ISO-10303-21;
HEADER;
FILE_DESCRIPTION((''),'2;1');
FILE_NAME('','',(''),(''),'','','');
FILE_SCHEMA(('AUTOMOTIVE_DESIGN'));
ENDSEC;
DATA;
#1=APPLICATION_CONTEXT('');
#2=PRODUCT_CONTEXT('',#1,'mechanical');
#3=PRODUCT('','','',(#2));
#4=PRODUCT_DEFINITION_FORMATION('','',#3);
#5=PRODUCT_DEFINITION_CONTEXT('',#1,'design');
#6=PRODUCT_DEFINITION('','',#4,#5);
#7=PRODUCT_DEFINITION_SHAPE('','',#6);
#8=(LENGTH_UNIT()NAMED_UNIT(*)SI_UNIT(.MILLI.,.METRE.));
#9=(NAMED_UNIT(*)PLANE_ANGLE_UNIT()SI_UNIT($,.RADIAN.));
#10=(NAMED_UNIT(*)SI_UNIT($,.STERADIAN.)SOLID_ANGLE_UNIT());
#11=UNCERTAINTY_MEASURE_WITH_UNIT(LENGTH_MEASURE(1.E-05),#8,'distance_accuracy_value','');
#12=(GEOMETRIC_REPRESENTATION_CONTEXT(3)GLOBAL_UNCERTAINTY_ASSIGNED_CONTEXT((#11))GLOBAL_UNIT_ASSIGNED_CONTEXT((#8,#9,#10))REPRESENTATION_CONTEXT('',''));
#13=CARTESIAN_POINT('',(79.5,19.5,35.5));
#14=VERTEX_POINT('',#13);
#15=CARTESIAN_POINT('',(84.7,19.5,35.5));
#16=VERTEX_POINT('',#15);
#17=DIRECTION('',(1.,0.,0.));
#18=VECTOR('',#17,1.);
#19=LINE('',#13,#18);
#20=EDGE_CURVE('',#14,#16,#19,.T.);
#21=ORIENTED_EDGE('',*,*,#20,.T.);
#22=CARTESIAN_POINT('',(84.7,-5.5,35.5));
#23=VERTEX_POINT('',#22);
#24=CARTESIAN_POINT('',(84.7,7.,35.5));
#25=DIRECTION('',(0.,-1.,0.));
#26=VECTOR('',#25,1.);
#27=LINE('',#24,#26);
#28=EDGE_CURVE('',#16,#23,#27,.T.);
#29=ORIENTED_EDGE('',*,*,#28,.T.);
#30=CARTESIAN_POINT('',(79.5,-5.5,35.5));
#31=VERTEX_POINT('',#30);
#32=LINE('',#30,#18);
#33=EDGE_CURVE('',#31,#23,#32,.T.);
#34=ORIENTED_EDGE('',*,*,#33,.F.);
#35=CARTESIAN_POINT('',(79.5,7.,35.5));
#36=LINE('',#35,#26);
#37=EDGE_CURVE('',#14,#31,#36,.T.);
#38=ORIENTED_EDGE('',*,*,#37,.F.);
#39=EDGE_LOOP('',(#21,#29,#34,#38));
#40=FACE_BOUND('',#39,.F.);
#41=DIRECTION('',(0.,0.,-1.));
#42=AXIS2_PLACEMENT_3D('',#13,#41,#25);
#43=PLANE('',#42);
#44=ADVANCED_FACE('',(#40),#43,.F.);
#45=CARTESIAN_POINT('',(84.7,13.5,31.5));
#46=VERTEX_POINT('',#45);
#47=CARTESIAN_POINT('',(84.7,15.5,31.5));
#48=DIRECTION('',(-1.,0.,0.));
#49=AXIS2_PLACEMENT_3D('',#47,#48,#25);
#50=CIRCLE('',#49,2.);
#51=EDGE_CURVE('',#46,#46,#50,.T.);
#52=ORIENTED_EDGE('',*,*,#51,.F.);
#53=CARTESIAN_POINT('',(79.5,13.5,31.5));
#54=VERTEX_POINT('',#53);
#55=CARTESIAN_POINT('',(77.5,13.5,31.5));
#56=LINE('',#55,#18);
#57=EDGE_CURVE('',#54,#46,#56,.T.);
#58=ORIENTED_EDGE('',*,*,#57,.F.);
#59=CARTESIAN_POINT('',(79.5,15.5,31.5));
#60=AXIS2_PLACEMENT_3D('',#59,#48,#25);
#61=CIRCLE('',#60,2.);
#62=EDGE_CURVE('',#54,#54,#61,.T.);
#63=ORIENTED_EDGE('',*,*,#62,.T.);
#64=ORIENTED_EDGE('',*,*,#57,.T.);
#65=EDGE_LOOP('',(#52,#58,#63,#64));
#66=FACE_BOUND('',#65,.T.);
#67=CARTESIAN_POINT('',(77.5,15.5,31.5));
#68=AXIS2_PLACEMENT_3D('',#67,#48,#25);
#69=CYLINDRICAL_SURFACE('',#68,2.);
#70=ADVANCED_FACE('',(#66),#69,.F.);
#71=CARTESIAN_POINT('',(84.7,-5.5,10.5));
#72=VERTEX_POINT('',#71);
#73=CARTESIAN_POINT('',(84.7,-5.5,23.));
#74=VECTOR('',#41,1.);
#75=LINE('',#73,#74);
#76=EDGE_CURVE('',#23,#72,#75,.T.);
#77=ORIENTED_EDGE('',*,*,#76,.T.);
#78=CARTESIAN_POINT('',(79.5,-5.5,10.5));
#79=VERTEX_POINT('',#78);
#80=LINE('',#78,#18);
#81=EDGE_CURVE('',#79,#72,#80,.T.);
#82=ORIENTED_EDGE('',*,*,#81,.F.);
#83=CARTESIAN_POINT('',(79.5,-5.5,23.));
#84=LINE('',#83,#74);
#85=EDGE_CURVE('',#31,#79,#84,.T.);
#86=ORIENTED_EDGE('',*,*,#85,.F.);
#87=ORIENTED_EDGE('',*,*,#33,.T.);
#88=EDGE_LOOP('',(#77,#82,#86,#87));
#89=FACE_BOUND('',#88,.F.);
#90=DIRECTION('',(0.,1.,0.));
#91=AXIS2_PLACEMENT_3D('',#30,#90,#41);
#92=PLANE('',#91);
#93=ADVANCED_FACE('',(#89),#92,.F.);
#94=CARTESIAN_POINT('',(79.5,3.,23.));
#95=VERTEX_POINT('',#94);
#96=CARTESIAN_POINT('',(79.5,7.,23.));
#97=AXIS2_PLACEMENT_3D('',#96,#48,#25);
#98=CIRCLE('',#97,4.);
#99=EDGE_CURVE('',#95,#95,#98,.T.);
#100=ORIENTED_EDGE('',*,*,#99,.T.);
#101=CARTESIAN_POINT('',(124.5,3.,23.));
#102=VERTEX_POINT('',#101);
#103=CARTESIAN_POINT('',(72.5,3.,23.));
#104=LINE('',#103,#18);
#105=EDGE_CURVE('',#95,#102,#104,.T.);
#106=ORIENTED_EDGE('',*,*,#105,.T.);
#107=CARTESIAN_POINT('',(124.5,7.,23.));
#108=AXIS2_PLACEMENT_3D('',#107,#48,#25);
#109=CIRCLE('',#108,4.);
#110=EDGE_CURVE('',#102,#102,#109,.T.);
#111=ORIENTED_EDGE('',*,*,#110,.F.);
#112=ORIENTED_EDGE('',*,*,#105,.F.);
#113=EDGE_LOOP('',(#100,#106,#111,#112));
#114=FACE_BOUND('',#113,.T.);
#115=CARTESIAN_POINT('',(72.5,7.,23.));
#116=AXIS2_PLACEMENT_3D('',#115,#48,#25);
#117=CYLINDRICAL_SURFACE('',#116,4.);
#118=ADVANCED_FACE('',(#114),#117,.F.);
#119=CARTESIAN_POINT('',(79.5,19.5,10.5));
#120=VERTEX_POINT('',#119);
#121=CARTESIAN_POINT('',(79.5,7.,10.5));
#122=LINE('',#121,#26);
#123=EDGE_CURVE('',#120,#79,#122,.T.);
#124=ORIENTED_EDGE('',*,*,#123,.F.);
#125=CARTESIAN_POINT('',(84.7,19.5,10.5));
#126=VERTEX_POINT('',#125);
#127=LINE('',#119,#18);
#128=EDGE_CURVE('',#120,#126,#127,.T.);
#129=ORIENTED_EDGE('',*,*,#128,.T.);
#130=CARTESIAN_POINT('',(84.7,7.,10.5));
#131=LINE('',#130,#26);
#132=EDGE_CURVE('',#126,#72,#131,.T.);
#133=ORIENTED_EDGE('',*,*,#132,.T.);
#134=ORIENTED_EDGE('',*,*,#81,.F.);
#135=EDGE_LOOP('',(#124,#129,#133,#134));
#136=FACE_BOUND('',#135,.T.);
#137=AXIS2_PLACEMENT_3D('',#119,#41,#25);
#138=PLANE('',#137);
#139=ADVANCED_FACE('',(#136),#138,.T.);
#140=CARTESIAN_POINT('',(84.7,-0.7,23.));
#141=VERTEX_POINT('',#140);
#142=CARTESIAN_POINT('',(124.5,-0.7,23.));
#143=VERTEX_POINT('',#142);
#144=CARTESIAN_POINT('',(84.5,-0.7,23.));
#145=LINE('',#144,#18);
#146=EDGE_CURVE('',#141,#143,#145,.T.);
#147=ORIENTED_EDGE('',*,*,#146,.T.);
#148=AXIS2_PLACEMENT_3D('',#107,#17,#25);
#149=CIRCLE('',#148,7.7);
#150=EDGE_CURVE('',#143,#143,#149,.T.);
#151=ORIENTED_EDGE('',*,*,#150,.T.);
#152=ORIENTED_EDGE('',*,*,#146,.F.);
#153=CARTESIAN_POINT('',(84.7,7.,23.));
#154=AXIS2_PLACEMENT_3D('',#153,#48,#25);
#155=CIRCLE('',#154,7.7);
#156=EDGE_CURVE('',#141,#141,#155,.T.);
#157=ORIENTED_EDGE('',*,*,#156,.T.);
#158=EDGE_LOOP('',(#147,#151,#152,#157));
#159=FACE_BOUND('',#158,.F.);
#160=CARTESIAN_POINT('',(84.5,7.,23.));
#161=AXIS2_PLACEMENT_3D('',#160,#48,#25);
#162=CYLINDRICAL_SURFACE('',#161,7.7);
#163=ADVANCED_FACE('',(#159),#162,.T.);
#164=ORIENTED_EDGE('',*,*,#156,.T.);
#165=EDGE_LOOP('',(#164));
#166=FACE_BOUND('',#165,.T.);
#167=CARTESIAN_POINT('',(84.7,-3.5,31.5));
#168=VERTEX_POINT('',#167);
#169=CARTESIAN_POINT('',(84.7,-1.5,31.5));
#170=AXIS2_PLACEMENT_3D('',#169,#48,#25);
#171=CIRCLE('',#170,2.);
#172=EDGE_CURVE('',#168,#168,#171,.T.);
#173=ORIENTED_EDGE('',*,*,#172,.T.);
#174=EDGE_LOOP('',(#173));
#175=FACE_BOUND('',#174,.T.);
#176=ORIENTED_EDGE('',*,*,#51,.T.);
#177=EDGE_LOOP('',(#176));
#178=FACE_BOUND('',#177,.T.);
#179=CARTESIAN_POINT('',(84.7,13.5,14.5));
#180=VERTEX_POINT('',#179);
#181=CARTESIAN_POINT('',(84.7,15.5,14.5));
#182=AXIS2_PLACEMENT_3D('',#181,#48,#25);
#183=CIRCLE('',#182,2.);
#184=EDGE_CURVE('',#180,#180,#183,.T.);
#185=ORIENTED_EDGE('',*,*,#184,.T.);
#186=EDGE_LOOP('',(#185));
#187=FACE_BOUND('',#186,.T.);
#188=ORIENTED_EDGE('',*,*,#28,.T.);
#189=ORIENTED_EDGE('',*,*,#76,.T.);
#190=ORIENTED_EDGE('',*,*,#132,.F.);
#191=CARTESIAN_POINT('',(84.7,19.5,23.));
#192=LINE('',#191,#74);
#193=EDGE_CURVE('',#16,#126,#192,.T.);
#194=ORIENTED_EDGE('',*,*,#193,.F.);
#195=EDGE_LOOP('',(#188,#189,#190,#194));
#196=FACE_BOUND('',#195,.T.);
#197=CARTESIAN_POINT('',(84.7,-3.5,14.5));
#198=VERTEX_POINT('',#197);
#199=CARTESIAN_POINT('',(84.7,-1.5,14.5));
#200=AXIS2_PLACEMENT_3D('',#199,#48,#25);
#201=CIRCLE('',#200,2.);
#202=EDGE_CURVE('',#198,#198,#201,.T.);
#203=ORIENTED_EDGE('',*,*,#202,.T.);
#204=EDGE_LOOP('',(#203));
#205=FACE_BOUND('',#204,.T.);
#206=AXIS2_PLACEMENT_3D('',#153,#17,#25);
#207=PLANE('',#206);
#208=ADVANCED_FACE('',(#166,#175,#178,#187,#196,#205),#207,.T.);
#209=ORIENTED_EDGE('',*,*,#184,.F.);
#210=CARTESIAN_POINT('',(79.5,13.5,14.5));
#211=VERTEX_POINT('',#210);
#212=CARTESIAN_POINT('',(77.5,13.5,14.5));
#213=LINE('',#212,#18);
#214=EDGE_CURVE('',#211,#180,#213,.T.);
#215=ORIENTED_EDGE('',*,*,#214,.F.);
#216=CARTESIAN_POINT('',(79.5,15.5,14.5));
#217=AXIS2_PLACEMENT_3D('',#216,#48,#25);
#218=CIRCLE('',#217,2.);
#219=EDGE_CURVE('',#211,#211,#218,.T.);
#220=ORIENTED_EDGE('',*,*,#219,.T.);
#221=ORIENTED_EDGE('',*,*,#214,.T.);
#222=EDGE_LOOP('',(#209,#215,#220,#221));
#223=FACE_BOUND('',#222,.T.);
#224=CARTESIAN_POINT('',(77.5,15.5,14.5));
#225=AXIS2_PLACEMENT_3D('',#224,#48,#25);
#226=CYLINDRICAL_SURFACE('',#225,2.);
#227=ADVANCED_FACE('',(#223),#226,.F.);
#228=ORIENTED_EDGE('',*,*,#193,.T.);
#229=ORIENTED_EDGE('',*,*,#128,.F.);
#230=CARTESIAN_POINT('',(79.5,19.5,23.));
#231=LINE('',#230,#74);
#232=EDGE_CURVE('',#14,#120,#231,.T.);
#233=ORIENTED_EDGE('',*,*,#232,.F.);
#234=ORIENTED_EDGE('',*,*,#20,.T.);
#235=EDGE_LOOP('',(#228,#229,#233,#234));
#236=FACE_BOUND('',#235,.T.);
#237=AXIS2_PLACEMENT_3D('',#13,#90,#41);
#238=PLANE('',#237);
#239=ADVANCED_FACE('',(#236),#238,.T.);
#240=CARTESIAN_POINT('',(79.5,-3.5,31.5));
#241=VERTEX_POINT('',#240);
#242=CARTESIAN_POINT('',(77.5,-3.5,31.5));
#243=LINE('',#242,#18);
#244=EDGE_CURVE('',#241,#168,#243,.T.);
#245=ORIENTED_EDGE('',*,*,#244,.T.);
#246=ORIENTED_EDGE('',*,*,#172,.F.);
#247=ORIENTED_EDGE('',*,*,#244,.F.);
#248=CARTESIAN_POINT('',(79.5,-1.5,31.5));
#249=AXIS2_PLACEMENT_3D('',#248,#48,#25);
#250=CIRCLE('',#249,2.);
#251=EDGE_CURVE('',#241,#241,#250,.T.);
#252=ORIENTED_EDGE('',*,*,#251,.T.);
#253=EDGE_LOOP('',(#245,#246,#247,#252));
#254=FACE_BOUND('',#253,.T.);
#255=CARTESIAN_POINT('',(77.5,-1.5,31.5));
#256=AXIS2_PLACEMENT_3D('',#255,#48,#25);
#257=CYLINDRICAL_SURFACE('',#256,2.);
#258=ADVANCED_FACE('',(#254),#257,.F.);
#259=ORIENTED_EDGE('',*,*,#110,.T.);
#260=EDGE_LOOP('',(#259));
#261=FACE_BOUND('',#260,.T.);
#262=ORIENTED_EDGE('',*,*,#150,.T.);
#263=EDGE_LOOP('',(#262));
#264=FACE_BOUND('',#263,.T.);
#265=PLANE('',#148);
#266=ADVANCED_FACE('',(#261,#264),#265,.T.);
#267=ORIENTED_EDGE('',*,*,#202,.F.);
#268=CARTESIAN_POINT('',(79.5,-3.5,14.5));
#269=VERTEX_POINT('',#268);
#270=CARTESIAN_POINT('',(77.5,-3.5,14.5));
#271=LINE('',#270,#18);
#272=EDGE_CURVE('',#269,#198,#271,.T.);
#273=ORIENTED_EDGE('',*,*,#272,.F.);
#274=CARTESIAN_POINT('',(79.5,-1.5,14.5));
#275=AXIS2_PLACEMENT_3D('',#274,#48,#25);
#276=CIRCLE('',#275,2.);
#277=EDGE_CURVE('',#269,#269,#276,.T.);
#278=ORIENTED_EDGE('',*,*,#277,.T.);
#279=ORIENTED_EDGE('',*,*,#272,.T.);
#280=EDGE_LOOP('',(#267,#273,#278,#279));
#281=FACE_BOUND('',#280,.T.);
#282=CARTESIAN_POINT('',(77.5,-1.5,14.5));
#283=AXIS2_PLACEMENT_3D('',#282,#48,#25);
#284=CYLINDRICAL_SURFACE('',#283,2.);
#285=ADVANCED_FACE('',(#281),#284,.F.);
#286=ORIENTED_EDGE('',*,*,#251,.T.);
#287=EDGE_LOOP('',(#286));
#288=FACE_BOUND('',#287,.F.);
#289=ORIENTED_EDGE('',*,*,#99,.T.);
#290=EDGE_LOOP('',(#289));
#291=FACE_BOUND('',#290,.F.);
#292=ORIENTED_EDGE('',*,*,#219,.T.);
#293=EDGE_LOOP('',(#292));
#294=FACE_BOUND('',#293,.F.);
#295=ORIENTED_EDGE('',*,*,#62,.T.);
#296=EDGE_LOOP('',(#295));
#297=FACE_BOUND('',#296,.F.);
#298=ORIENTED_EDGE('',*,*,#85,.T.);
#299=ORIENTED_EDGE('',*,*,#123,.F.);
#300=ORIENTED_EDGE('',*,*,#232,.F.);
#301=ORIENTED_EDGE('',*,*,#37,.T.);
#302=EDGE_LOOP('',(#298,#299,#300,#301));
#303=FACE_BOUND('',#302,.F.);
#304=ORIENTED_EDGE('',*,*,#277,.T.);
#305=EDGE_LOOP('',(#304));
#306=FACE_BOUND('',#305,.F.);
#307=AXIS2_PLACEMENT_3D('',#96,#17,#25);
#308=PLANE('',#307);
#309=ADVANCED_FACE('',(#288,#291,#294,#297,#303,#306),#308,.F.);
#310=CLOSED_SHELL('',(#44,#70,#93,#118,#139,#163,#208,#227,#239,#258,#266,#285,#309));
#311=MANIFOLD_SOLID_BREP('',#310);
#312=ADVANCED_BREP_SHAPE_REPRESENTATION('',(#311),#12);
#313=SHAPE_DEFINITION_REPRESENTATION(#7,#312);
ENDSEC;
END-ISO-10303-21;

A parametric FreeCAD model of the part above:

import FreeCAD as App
import Part
import Sketcher
from FreeCAD import Vector


def add_polygon(sketch, points):
    """Adds a closed chain of lines whose ends are joined by coincident constraints."""
    first, n = sketch.GeometryCount, len(points)
    for a, b in zip(points, points[1:] + points[:1]):
        sketch.addGeometry(Part.LineSegment(App.Vector(*a, 0), App.Vector(*b, 0)), False)
    for i in range(n):
        sketch.addConstraint(Sketcher.Constraint("Coincident", first + i, 2, first + (i + 1) % n, 1))

doc = App.newDocument("Part")
params = doc.addObject("Spreadsheet::Sheet", "Params")
for row, (alias, value) in enumerate([
    ("sketch1_diameter", "4 mm"),
    ("pad1_length", "10 mm"),
    ("sketch2_diameter", "4 mm"),
    ("pad2_length", "10 mm"),
    ("sketch3_diameter", "4 mm"),
    ("pad3_length", "10 mm"),
    ("sketch4_diameter", "4 mm"),
    ("pad4_length", "10 mm"),
    ("sketch5_diameter", "8 mm"),
    ("pad5_length", "60 mm"),
    ("sketch6_diameter", "15.4 mm"),
    ("pad6_length", "40 mm"),
    ("sketch7_width", "25 mm"),
    ("pad7_length", "5.2 mm"),
], start=1):
    params.set(f"A{row}", alias)
    params.set(f"B{row}", "=" + value)
    params.setAlias(f"B{row}", alias)

body = doc.addObject("PartDesign::Body", "Body")

# Sketch on XY plane
sketch1 = body.newObject("Sketcher::SketchObject", "Sketch")
sketch1.AttachmentSupport = (doc.getObject("XY_Plane"), [""])
sketch1.MapMode = "FlatFace"
sketch1.AttachmentOffset = App.Placement(Vector(0, 0, -2), App.Rotation())
sketch1.addGeometry(Part.Circle(Vector(21, 21, 0), Vector(0, 0, 1), 2), False)
sketch1.addConstraint([
    Sketcher.Constraint("Diameter", 0, 4.0),
    Sketcher.Constraint("DistanceX", -1, 1, 0, 3, 21.0),
    Sketcher.Constraint("DistanceY", -1, 1, 0, 3, 21.0),
])
sketch1.setExpression("Constraints[0]", "Params.sketch1_diameter")
pad1 = body.newObject("PartDesign::Pad", "Pad")
pad1.Profile = sketch1
pad1.setExpression("Length", "Params.pad1_length")
body2 = doc.addObject("PartDesign::Body", "Body001")

# Sketch on XY plane
sketch2 = body2.newObject("Sketcher::SketchObject", "Sketch001")
sketch2.AttachmentSupport = (doc.getObject("XY_Plane001"), [""])
sketch2.MapMode = "FlatFace"
sketch2.AttachmentOffset = App.Placement(Vector(0, 0, -2), App.Rotation())
sketch2.addGeometry(Part.Circle(Vector(21, 4, 0), Vector(0, 0, 1), 2), False)
sketch2.addConstraint([
    Sketcher.Constraint("Diameter", 0, 4.0),
    Sketcher.Constraint("DistanceX", -1, 1, 0, 3, 21.0),
    Sketcher.Constraint("DistanceY", -1, 1, 0, 3, 4.0),
])
sketch2.setExpression("Constraints[0]", "Params.sketch2_diameter")
pad2 = body2.newObject("PartDesign::Pad", "Pad001")
pad2.Profile = sketch2
pad2.setExpression("Length", "Params.pad2_length")
body3 = doc.addObject("PartDesign::Body", "Body002")

# Sketch on XY plane
sketch3 = body3.newObject("Sketcher::SketchObject", "Sketch002")
sketch3.AttachmentSupport = (doc.getObject("XY_Plane002"), [""])
sketch3.MapMode = "FlatFace"
sketch3.AttachmentOffset = App.Placement(Vector(0, 0, -2), App.Rotation())
sketch3.addGeometry(Part.Circle(Vector(4, 21, 0), Vector(0, 0, 1), 2), False)
sketch3.addConstraint([
    Sketcher.Constraint("Diameter", 0, 4.0),
    Sketcher.Constraint("DistanceX", -1, 1, 0, 3, 4.0),
    Sketcher.Constraint("DistanceY", -1, 1, 0, 3, 21.0),
])
sketch3.setExpression("Constraints[0]", "Params.sketch3_diameter")
pad3 = body3.newObject("PartDesign::Pad", "Pad002")
pad3.Profile = sketch3
pad3.setExpression("Length", "Params.pad3_length")
body4 = doc.addObject("PartDesign::Body", "Body003")

# Sketch on XY plane
sketch4 = body4.newObject("Sketcher::SketchObject", "Sketch003")
sketch4.AttachmentSupport = (doc.getObject("XY_Plane003"), [""])
sketch4.MapMode = "FlatFace"
sketch4.AttachmentOffset = App.Placement(Vector(0, 0, -2), App.Rotation())
sketch4.addGeometry(Part.Circle(Vector(4, 4, 0), Vector(0, 0, 1), 2), False)
sketch4.addConstraint([
    Sketcher.Constraint("Diameter", 0, 4.0),
    Sketcher.Constraint("DistanceX", -1, 1, 0, 3, 4.0),
    Sketcher.Constraint("DistanceY", -1, 1, 0, 3, 4.0),
])
sketch4.setExpression("Constraints[0]", "Params.sketch4_diameter")
pad4 = body4.newObject("PartDesign::Pad", "Pad003")
pad4.Profile = sketch4
pad4.setExpression("Length", "Params.pad4_length")
body5 = doc.addObject("PartDesign::Body", "Body004")

# Sketch on XY plane
sketch5 = body5.newObject("Sketcher::SketchObject", "Sketch004")
sketch5.AttachmentSupport = (doc.getObject("XY_Plane004"), [""])
sketch5.MapMode = "FlatFace"
sketch5.AttachmentOffset = App.Placement(Vector(0, 0, -7), App.Rotation())
sketch5.addGeometry(Part.Circle(Vector(12.5, 12.5, 0), Vector(0, 0, 1), 4), False)
sketch5.addConstraint([
    Sketcher.Constraint("Diameter", 0, 8.0),
    Sketcher.Constraint("DistanceX", -1, 1, 0, 3, 12.5),
    Sketcher.Constraint("DistanceY", -1, 1, 0, 3, 12.5),
])
sketch5.setExpression("Constraints[0]", "Params.sketch5_diameter")
pad5 = body5.newObject("PartDesign::Pad", "Pad004")
pad5.Profile = sketch5
pad5.setExpression("Length", "Params.pad5_length")
body6 = doc.addObject("PartDesign::Body", "Body005")

# Sketch on XY plane
sketch6 = body6.newObject("Sketcher::SketchObject", "Sketch005")
sketch6.AttachmentSupport = (doc.getObject("XY_Plane005"), [""])
sketch6.MapMode = "FlatFace"
sketch6.AttachmentOffset = App.Placement(Vector(0, 0, 5), App.Rotation())
sketch6.addGeometry(Part.Circle(Vector(12, 12, 0), Vector(0, 0, 1), 8), False)
sketch6.addConstraint([
    Sketcher.Constraint("Diameter", 0, 15.4),
    Sketcher.Constraint("DistanceX", -1, 1, 0, 3, 12.5),
    Sketcher.Constraint("DistanceY", -1, 1, 0, 3, 12.5),
])
sketch6.setExpression("Constraints[0]", "Params.sketch6_diameter")
pad6 = body6.newObject("PartDesign::Pad", "Pad005")
pad6.Profile = sketch6
pad6.setExpression("Length", "Params.pad6_length")
body7 = doc.addObject("PartDesign::Body", "Body006")

# Sketch on XY plane
sketch7 = body7.newObject("Sketcher::SketchObject", "Sketch006")
sketch7.AttachmentSupport = (doc.getObject("XY_Plane006"), [""])
sketch7.MapMode = "FlatFace"
add_polygon(sketch7, [(0, 25), (0, 0), (25, 0), (25, 25)])  # lines 0-3
sketch7.addConstraint([
    Sketcher.Constraint("Vertical", 0),
    Sketcher.Constraint("Horizontal", 1),
    Sketcher.Constraint("Vertical", 2),
    Sketcher.Constraint("Horizontal", 3),
    Sketcher.Constraint("Coincident", 0, 2, -1, 1),
    Sketcher.Constraint("Equal", 3, 0),
    Sketcher.Constraint("DistanceX", 1, 1, 1, 2, 25.0),
])
sketch7.setExpression("Constraints[10]", "Params.sketch7_width")
pad7 = body7.newObject("PartDesign::Pad", "Pad006")
pad7.Profile = sketch7
pad7.setExpression("Length", "Params.pad7_length")
doc.recompute()

boolean = body7.newObject("PartDesign::Boolean", "Boolean")
boolean.Type = "Fuse"
boolean.addObjects([body6])
doc.recompute()

boolean2 = body7.newObject("PartDesign::Boolean", "Boolean001")
boolean2.Type = "Cut"
boolean2.addObjects([body5])
doc.recompute()

boolean3 = body7.newObject("PartDesign::Boolean", "Boolean002")
boolean3.Type = "Cut"
boolean3.addObjects([body4])
doc.recompute()

boolean4 = body7.newObject("PartDesign::Boolean", "Boolean003")
boolean4.Type = "Cut"
boolean4.addObjects([body3])
doc.recompute()

boolean5 = body7.newObject("PartDesign::Boolean", "Boolean004")
boolean5.Type = "Cut"
boolean5.addObjects([body2])
doc.recompute()

boolean6 = body7.newObject("PartDesign::Boolean", "Boolean005")
boolean6.Type = "Cut"
boolean6.addObjects([body])
body8 = doc.addObject("PartDesign::Body", "Body007")
doc.recompute()

body7.Placement = App.Placement(Vector(0, 0, 0), App.Rotation(Vector(1, 0, 0), 270))
boolean7 = body8.newObject("PartDesign::Boolean", "Boolean006")
boolean7.Type = "Fuse"
boolean7.addObjects([body7])
body9 = doc.addObject("PartDesign::Body", "Body008")
doc.recompute()

body8.Placement = App.Placement(Vector(79.5, 19.5, 35.5), App.Rotation(Vector(0, 0, 1), 270))
boolean8 = body9.newObject("PartDesign::Boolean", "Boolean007")
boolean8.Type = "Fuse"
boolean8.addObjects([body8])

doc.recompute()
